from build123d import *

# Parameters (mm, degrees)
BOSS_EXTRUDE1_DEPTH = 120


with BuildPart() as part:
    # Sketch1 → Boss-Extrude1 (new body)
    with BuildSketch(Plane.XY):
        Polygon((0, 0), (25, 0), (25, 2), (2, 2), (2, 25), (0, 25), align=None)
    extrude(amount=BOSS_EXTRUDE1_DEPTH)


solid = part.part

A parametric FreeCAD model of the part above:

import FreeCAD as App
import Part
import Sketcher

V = App.Vector
Q = App.Units.Quantity


def add_polygon(sketch, points):
    """Adds a closed chain of lines whose ends are joined by coincident constraints."""
    first, n = sketch.GeometryCount, len(points)
    for a, b in zip(points, points[1:] + points[:1]):
        sketch.addGeometry(Part.LineSegment(App.Vector(*a, 0), App.Vector(*b, 0)), False)
    for i in range(n):
        sketch.addConstraint(Sketcher.Constraint("Coincident", first + i, 2, first + (i + 1) % n, 1))

doc = App.newDocument("Part")
params = doc.addObject("Spreadsheet::Sheet", "Params")
for row, (alias, value) in enumerate([
    ("sketch1_width", "25 mm"),
    ("sketch1_width2", "23 mm"),
    ("pad1_length", "120 mm"),
], start=1):
    params.set(f"A{row}", alias)
    params.set(f"B{row}", "=" + value)
    params.setAlias(f"B{row}", alias)

body = doc.addObject("PartDesign::Body", "Body")

# Sketch on XY plane
sketch1 = body.newObject("Sketcher::SketchObject", "Sketch")
sketch1.AttachmentSupport = (doc.getObject("XY_Plane"), [""])
sketch1.MapMode = "FlatFace"
add_polygon(sketch1, [(0, 0), (25, 0), (25, 2), (2, 2), (2, 25), (0, 25)])  # lines 0-5
sketch1.addConstraint(Sketcher.Constraint("Horizontal", 0))
sketch1.addConstraint(Sketcher.Constraint("Vertical", 1))
sketch1.addConstraint(Sketcher.Constraint("Horizontal", 2))
sketch1.addConstraint(Sketcher.Constraint("Vertical", 3))
sketch1.addConstraint(Sketcher.Constraint("Horizontal", 4))
sketch1.addConstraint(Sketcher.Constraint("Vertical", 5))
sketch1.addConstraint(Sketcher.Constraint("Coincident", 5, 2, -1, 1))
sketch1.addConstraint(Sketcher.Constraint("Equal", 4, 1))
sketch1.addConstraint(Sketcher.Constraint("Equal", 2, 3))
sketch1.addConstraint(Sketcher.Constraint("DistanceX", 0, 1, 0, 2, Q("25 mm")))
sketch1.addConstraint(Sketcher.Constraint("DistanceX", 2, 2, 2, 1, Q("23 mm")))
sketch1.setExpression("Constraints[15]", "Params.sketch1_width")
sketch1.setExpression("Constraints[16]", "Params.sketch1_width2")
pad1 = body.newObject("PartDesign::Pad", "Pad")
pad1.Profile = sketch1
pad1.setExpression("Length", "Params.pad1_length")

doc.recompute()
